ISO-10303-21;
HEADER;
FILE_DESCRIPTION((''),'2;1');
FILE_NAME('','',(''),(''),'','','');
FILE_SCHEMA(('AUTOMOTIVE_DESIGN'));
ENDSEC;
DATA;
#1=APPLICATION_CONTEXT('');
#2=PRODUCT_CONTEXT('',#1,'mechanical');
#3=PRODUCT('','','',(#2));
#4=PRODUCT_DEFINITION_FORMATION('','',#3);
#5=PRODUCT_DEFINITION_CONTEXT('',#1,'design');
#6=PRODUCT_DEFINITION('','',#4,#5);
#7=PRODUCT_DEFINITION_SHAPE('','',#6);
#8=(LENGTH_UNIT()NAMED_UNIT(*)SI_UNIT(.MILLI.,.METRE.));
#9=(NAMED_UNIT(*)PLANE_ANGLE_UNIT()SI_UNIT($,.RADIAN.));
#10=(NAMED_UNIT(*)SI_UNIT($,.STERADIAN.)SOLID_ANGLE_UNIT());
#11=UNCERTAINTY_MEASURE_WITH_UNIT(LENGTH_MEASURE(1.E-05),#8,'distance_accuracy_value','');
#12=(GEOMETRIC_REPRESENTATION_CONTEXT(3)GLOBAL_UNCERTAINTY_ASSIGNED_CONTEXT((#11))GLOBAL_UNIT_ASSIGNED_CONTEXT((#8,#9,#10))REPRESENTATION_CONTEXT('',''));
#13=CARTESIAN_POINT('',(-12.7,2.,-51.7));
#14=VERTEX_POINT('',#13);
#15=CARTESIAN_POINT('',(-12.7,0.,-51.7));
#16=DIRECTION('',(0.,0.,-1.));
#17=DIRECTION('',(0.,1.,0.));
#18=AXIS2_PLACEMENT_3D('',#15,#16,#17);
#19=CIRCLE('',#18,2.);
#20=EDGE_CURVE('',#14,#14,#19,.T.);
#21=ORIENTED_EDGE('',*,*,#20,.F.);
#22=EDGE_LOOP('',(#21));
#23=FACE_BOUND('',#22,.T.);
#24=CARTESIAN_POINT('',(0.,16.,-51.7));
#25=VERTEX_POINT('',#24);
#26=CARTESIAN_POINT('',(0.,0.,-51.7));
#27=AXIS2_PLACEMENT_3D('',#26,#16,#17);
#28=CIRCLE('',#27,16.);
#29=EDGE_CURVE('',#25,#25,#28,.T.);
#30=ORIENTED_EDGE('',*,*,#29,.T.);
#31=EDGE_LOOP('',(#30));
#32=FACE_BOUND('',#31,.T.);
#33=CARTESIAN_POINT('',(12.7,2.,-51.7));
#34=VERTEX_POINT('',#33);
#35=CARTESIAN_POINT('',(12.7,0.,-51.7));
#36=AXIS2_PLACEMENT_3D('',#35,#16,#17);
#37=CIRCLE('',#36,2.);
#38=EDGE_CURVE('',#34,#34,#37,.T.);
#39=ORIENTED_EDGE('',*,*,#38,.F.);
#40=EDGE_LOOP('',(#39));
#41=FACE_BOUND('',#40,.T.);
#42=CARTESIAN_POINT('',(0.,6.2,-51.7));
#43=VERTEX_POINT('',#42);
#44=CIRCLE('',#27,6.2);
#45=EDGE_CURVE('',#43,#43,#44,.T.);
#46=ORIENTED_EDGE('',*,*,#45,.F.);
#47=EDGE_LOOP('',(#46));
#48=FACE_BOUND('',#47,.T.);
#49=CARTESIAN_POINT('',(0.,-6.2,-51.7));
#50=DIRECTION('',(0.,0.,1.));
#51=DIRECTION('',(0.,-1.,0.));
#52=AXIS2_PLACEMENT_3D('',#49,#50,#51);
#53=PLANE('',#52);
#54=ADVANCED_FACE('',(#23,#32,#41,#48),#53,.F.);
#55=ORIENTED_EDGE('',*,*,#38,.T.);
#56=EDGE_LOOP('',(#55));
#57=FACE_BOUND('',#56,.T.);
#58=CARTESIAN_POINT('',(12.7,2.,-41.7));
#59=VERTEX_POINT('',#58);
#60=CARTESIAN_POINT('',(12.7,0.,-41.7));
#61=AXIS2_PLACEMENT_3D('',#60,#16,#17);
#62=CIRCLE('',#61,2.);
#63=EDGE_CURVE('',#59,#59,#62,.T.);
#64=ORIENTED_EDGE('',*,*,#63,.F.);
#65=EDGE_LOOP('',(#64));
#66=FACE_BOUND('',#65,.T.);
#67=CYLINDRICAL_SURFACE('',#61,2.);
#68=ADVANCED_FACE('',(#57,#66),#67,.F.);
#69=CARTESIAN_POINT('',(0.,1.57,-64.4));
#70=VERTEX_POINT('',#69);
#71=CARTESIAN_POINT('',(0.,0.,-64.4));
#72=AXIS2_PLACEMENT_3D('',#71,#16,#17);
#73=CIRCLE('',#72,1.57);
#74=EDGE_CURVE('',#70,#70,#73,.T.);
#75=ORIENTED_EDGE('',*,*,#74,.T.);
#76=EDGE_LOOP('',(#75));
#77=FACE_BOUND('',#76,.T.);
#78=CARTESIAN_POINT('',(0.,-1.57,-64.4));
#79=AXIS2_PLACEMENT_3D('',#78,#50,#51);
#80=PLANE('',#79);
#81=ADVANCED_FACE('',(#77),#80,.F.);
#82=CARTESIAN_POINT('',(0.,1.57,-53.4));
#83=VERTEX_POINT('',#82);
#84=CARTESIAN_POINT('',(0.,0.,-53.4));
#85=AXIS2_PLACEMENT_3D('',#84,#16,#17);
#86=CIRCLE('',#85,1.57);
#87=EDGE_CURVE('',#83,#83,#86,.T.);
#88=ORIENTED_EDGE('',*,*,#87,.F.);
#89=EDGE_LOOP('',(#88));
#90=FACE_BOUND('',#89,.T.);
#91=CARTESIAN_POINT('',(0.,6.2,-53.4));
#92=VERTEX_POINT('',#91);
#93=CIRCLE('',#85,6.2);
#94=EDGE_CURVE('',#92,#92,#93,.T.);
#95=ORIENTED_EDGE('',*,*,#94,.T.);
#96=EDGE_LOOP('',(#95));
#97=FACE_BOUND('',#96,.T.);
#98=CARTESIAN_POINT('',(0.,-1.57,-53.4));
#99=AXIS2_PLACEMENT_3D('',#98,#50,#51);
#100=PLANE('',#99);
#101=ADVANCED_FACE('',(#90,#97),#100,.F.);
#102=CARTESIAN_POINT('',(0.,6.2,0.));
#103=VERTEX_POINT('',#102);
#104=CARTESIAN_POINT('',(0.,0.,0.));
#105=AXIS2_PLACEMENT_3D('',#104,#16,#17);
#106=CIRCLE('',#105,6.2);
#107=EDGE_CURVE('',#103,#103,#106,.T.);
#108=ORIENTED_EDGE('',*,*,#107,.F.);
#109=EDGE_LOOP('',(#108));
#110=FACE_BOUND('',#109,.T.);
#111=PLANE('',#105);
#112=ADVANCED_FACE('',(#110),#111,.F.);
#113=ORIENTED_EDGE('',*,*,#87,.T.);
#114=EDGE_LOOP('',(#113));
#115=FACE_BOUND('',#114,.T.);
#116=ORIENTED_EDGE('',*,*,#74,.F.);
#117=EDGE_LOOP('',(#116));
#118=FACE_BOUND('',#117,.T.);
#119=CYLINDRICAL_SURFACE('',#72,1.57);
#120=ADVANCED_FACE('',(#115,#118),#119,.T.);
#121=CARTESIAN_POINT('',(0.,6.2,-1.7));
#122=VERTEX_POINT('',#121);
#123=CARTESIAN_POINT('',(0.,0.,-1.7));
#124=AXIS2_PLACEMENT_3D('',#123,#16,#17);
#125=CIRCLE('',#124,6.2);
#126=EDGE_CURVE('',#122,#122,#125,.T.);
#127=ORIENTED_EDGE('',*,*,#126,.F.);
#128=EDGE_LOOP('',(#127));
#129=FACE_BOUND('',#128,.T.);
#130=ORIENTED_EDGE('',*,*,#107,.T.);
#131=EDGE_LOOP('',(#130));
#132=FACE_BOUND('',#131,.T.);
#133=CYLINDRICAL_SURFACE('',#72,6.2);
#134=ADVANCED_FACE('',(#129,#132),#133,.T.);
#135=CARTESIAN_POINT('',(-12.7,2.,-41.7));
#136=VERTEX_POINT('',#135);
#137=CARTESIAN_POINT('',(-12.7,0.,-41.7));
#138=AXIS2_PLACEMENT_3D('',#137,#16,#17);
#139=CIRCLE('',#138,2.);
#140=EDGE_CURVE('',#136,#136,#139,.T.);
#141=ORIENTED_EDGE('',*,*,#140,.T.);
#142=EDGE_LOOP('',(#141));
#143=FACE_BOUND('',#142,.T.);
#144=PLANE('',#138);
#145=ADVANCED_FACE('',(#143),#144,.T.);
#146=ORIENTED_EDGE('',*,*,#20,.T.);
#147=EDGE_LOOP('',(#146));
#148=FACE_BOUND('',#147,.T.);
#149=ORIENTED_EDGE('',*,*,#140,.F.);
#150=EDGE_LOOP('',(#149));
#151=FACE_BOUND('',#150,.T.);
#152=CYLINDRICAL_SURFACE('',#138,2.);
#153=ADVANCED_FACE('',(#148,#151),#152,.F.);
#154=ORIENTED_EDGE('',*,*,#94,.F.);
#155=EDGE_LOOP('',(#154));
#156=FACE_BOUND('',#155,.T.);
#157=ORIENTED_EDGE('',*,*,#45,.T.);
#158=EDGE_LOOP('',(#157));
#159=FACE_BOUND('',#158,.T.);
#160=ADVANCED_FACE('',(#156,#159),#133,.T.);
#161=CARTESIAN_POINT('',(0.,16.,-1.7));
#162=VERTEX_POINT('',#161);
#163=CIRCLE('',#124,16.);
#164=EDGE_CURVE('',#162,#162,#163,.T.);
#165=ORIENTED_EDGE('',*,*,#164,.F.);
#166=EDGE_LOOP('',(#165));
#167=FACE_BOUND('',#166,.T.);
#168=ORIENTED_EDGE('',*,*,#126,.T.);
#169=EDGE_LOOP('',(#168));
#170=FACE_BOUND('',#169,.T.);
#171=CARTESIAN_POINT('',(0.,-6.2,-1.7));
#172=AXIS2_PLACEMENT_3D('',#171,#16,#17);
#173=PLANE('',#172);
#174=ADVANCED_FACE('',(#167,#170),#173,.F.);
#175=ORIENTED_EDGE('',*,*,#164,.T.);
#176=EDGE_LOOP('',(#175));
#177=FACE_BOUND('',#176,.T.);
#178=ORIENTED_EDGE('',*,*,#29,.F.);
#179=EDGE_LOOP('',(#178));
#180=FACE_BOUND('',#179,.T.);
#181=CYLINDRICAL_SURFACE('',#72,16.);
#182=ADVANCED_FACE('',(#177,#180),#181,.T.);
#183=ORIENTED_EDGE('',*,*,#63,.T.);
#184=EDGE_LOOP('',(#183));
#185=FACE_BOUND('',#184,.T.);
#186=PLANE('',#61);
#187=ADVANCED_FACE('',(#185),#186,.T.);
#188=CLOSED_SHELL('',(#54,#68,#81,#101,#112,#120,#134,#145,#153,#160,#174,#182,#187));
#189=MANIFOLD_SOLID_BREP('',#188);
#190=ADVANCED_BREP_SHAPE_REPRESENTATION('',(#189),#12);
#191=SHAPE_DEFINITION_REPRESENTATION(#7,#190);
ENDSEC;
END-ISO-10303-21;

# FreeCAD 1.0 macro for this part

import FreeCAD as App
import Part
import Sketcher
Q = App.Units.Quantity


def add_polygon(sketch, points):
    """Adds a closed chain of lines whose ends are joined by coincident constraints."""
    first, n = sketch.GeometryCount, len(points)
    for a, b in zip(points, points[1:] + points[:1]):
        sketch.addGeometry(Part.LineSegment(App.Vector(*a, 0), App.Vector(*b, 0)), False)
    for i in range(n):
        sketch.addConstraint(Sketcher.Constraint("Coincident", first + i, 2, first + (i + 1) % n, 1))

doc = App.newDocument("Part")
body = doc.addObject("PartDesign::Body", "Body")

sketch1 = body.newObject("Sketcher::SketchObject", "Sketch")
sketch1.AttachmentSupport = (doc.getObject("YZ_Plane"), [""])
sketch1.MapMode = "FlatFace"
add_polygon(sketch1, [(0, 0), (-6.2, 0), (-6.2, -1.7), (-16, -1.7), (-16, -51.7), (-6.2, -51.7), (-6.2, -53.4), (-1.6, -53.4), (-1.6, -64.4), (0, -64.4)])
sketch1.addConstraint([
    Sketcher.Constraint("Horizontal", 0),
    Sketcher.Constraint("Vertical", 1),
    Sketcher.Constraint("Horizontal", 2),
    Sketcher.Constraint("Vertical", 3),
    Sketcher.Constraint("Horizontal", 4),
    Sketcher.Constraint("Vertical", 5),
    Sketcher.Constraint("Horizontal", 6),
    Sketcher.Constraint("Vertical", 7),
    Sketcher.Constraint("Horizontal", 8),
    Sketcher.Constraint("Vertical", 9),
    Sketcher.Constraint("Coincident", 9, 2, -1, 1),
    Sketcher.Constraint("Vertical", 1, 2, 4, 2),
    Sketcher.Constraint("Equal", 1, 5),
    Sketcher.Constraint("DistanceY", 3, 2, 3, 1, Q("50 mm")),
    Sketcher.Constraint("DistanceY", 7, 2, 7, 1, Q("11 mm")),
    Sketcher.Constraint("DistanceX", 0, 2, 0, 1, Q("6.2 mm")),
    Sketcher.Constraint("DistanceX", 2, 2, 2, 1, Q("9.8 mm")),
    Sketcher.Constraint("DistanceY", 1, 2, 1, 1, Q("1.7 mm")),
    Sketcher.Constraint("DistanceX", 6, 1, 6, 2, Q("4.63 mm")),
])
revolution = body.newObject("PartDesign::Revolution", "Revolution")
revolution.Profile = sketch1
revolution.ReferenceAxis = (sketch1, ["V_Axis"])
revolution.Angle = 360

sketch2 = body.newObject("Sketcher::SketchObject", "Sketch001")
sketch2.AttachmentSupport = (doc.getObject("XY_Plane"), [""])
sketch2.MapMode = "FlatFace"
sketch2.AttachmentOffset = App.Placement(App.Vector(0, 0, -51.7), App.Rotation())
sketch2.addGeometry([
    Part.Circle(App.Vector(-12.7, 0, 0), App.Vector(0, 0, 1), 2),
    Part.Circle(App.Vector(12.7, 0, 0), App.Vector(0, 0, 1), 2),
], False)
sketch2.addConstraint([
    Sketcher.Constraint("Equal", 0, 1),
    Sketcher.Constraint("Symmetric", 0, 3, 1, 3, -1, 1),
    Sketcher.Constraint("PointOnObject", 0, 3, -1),
    Sketcher.Constraint("Diameter", 0, Q("4 mm")),
    Sketcher.Constraint("DistanceX", 0, 3, -1, 1, Q("12.7 mm")),
])
pocket1 = body.newObject("PartDesign::Pocket", "Pocket")
pocket1.Profile = sketch2
pocket1.Length = 10
pocket1.Reversed = True

doc.recompute()
